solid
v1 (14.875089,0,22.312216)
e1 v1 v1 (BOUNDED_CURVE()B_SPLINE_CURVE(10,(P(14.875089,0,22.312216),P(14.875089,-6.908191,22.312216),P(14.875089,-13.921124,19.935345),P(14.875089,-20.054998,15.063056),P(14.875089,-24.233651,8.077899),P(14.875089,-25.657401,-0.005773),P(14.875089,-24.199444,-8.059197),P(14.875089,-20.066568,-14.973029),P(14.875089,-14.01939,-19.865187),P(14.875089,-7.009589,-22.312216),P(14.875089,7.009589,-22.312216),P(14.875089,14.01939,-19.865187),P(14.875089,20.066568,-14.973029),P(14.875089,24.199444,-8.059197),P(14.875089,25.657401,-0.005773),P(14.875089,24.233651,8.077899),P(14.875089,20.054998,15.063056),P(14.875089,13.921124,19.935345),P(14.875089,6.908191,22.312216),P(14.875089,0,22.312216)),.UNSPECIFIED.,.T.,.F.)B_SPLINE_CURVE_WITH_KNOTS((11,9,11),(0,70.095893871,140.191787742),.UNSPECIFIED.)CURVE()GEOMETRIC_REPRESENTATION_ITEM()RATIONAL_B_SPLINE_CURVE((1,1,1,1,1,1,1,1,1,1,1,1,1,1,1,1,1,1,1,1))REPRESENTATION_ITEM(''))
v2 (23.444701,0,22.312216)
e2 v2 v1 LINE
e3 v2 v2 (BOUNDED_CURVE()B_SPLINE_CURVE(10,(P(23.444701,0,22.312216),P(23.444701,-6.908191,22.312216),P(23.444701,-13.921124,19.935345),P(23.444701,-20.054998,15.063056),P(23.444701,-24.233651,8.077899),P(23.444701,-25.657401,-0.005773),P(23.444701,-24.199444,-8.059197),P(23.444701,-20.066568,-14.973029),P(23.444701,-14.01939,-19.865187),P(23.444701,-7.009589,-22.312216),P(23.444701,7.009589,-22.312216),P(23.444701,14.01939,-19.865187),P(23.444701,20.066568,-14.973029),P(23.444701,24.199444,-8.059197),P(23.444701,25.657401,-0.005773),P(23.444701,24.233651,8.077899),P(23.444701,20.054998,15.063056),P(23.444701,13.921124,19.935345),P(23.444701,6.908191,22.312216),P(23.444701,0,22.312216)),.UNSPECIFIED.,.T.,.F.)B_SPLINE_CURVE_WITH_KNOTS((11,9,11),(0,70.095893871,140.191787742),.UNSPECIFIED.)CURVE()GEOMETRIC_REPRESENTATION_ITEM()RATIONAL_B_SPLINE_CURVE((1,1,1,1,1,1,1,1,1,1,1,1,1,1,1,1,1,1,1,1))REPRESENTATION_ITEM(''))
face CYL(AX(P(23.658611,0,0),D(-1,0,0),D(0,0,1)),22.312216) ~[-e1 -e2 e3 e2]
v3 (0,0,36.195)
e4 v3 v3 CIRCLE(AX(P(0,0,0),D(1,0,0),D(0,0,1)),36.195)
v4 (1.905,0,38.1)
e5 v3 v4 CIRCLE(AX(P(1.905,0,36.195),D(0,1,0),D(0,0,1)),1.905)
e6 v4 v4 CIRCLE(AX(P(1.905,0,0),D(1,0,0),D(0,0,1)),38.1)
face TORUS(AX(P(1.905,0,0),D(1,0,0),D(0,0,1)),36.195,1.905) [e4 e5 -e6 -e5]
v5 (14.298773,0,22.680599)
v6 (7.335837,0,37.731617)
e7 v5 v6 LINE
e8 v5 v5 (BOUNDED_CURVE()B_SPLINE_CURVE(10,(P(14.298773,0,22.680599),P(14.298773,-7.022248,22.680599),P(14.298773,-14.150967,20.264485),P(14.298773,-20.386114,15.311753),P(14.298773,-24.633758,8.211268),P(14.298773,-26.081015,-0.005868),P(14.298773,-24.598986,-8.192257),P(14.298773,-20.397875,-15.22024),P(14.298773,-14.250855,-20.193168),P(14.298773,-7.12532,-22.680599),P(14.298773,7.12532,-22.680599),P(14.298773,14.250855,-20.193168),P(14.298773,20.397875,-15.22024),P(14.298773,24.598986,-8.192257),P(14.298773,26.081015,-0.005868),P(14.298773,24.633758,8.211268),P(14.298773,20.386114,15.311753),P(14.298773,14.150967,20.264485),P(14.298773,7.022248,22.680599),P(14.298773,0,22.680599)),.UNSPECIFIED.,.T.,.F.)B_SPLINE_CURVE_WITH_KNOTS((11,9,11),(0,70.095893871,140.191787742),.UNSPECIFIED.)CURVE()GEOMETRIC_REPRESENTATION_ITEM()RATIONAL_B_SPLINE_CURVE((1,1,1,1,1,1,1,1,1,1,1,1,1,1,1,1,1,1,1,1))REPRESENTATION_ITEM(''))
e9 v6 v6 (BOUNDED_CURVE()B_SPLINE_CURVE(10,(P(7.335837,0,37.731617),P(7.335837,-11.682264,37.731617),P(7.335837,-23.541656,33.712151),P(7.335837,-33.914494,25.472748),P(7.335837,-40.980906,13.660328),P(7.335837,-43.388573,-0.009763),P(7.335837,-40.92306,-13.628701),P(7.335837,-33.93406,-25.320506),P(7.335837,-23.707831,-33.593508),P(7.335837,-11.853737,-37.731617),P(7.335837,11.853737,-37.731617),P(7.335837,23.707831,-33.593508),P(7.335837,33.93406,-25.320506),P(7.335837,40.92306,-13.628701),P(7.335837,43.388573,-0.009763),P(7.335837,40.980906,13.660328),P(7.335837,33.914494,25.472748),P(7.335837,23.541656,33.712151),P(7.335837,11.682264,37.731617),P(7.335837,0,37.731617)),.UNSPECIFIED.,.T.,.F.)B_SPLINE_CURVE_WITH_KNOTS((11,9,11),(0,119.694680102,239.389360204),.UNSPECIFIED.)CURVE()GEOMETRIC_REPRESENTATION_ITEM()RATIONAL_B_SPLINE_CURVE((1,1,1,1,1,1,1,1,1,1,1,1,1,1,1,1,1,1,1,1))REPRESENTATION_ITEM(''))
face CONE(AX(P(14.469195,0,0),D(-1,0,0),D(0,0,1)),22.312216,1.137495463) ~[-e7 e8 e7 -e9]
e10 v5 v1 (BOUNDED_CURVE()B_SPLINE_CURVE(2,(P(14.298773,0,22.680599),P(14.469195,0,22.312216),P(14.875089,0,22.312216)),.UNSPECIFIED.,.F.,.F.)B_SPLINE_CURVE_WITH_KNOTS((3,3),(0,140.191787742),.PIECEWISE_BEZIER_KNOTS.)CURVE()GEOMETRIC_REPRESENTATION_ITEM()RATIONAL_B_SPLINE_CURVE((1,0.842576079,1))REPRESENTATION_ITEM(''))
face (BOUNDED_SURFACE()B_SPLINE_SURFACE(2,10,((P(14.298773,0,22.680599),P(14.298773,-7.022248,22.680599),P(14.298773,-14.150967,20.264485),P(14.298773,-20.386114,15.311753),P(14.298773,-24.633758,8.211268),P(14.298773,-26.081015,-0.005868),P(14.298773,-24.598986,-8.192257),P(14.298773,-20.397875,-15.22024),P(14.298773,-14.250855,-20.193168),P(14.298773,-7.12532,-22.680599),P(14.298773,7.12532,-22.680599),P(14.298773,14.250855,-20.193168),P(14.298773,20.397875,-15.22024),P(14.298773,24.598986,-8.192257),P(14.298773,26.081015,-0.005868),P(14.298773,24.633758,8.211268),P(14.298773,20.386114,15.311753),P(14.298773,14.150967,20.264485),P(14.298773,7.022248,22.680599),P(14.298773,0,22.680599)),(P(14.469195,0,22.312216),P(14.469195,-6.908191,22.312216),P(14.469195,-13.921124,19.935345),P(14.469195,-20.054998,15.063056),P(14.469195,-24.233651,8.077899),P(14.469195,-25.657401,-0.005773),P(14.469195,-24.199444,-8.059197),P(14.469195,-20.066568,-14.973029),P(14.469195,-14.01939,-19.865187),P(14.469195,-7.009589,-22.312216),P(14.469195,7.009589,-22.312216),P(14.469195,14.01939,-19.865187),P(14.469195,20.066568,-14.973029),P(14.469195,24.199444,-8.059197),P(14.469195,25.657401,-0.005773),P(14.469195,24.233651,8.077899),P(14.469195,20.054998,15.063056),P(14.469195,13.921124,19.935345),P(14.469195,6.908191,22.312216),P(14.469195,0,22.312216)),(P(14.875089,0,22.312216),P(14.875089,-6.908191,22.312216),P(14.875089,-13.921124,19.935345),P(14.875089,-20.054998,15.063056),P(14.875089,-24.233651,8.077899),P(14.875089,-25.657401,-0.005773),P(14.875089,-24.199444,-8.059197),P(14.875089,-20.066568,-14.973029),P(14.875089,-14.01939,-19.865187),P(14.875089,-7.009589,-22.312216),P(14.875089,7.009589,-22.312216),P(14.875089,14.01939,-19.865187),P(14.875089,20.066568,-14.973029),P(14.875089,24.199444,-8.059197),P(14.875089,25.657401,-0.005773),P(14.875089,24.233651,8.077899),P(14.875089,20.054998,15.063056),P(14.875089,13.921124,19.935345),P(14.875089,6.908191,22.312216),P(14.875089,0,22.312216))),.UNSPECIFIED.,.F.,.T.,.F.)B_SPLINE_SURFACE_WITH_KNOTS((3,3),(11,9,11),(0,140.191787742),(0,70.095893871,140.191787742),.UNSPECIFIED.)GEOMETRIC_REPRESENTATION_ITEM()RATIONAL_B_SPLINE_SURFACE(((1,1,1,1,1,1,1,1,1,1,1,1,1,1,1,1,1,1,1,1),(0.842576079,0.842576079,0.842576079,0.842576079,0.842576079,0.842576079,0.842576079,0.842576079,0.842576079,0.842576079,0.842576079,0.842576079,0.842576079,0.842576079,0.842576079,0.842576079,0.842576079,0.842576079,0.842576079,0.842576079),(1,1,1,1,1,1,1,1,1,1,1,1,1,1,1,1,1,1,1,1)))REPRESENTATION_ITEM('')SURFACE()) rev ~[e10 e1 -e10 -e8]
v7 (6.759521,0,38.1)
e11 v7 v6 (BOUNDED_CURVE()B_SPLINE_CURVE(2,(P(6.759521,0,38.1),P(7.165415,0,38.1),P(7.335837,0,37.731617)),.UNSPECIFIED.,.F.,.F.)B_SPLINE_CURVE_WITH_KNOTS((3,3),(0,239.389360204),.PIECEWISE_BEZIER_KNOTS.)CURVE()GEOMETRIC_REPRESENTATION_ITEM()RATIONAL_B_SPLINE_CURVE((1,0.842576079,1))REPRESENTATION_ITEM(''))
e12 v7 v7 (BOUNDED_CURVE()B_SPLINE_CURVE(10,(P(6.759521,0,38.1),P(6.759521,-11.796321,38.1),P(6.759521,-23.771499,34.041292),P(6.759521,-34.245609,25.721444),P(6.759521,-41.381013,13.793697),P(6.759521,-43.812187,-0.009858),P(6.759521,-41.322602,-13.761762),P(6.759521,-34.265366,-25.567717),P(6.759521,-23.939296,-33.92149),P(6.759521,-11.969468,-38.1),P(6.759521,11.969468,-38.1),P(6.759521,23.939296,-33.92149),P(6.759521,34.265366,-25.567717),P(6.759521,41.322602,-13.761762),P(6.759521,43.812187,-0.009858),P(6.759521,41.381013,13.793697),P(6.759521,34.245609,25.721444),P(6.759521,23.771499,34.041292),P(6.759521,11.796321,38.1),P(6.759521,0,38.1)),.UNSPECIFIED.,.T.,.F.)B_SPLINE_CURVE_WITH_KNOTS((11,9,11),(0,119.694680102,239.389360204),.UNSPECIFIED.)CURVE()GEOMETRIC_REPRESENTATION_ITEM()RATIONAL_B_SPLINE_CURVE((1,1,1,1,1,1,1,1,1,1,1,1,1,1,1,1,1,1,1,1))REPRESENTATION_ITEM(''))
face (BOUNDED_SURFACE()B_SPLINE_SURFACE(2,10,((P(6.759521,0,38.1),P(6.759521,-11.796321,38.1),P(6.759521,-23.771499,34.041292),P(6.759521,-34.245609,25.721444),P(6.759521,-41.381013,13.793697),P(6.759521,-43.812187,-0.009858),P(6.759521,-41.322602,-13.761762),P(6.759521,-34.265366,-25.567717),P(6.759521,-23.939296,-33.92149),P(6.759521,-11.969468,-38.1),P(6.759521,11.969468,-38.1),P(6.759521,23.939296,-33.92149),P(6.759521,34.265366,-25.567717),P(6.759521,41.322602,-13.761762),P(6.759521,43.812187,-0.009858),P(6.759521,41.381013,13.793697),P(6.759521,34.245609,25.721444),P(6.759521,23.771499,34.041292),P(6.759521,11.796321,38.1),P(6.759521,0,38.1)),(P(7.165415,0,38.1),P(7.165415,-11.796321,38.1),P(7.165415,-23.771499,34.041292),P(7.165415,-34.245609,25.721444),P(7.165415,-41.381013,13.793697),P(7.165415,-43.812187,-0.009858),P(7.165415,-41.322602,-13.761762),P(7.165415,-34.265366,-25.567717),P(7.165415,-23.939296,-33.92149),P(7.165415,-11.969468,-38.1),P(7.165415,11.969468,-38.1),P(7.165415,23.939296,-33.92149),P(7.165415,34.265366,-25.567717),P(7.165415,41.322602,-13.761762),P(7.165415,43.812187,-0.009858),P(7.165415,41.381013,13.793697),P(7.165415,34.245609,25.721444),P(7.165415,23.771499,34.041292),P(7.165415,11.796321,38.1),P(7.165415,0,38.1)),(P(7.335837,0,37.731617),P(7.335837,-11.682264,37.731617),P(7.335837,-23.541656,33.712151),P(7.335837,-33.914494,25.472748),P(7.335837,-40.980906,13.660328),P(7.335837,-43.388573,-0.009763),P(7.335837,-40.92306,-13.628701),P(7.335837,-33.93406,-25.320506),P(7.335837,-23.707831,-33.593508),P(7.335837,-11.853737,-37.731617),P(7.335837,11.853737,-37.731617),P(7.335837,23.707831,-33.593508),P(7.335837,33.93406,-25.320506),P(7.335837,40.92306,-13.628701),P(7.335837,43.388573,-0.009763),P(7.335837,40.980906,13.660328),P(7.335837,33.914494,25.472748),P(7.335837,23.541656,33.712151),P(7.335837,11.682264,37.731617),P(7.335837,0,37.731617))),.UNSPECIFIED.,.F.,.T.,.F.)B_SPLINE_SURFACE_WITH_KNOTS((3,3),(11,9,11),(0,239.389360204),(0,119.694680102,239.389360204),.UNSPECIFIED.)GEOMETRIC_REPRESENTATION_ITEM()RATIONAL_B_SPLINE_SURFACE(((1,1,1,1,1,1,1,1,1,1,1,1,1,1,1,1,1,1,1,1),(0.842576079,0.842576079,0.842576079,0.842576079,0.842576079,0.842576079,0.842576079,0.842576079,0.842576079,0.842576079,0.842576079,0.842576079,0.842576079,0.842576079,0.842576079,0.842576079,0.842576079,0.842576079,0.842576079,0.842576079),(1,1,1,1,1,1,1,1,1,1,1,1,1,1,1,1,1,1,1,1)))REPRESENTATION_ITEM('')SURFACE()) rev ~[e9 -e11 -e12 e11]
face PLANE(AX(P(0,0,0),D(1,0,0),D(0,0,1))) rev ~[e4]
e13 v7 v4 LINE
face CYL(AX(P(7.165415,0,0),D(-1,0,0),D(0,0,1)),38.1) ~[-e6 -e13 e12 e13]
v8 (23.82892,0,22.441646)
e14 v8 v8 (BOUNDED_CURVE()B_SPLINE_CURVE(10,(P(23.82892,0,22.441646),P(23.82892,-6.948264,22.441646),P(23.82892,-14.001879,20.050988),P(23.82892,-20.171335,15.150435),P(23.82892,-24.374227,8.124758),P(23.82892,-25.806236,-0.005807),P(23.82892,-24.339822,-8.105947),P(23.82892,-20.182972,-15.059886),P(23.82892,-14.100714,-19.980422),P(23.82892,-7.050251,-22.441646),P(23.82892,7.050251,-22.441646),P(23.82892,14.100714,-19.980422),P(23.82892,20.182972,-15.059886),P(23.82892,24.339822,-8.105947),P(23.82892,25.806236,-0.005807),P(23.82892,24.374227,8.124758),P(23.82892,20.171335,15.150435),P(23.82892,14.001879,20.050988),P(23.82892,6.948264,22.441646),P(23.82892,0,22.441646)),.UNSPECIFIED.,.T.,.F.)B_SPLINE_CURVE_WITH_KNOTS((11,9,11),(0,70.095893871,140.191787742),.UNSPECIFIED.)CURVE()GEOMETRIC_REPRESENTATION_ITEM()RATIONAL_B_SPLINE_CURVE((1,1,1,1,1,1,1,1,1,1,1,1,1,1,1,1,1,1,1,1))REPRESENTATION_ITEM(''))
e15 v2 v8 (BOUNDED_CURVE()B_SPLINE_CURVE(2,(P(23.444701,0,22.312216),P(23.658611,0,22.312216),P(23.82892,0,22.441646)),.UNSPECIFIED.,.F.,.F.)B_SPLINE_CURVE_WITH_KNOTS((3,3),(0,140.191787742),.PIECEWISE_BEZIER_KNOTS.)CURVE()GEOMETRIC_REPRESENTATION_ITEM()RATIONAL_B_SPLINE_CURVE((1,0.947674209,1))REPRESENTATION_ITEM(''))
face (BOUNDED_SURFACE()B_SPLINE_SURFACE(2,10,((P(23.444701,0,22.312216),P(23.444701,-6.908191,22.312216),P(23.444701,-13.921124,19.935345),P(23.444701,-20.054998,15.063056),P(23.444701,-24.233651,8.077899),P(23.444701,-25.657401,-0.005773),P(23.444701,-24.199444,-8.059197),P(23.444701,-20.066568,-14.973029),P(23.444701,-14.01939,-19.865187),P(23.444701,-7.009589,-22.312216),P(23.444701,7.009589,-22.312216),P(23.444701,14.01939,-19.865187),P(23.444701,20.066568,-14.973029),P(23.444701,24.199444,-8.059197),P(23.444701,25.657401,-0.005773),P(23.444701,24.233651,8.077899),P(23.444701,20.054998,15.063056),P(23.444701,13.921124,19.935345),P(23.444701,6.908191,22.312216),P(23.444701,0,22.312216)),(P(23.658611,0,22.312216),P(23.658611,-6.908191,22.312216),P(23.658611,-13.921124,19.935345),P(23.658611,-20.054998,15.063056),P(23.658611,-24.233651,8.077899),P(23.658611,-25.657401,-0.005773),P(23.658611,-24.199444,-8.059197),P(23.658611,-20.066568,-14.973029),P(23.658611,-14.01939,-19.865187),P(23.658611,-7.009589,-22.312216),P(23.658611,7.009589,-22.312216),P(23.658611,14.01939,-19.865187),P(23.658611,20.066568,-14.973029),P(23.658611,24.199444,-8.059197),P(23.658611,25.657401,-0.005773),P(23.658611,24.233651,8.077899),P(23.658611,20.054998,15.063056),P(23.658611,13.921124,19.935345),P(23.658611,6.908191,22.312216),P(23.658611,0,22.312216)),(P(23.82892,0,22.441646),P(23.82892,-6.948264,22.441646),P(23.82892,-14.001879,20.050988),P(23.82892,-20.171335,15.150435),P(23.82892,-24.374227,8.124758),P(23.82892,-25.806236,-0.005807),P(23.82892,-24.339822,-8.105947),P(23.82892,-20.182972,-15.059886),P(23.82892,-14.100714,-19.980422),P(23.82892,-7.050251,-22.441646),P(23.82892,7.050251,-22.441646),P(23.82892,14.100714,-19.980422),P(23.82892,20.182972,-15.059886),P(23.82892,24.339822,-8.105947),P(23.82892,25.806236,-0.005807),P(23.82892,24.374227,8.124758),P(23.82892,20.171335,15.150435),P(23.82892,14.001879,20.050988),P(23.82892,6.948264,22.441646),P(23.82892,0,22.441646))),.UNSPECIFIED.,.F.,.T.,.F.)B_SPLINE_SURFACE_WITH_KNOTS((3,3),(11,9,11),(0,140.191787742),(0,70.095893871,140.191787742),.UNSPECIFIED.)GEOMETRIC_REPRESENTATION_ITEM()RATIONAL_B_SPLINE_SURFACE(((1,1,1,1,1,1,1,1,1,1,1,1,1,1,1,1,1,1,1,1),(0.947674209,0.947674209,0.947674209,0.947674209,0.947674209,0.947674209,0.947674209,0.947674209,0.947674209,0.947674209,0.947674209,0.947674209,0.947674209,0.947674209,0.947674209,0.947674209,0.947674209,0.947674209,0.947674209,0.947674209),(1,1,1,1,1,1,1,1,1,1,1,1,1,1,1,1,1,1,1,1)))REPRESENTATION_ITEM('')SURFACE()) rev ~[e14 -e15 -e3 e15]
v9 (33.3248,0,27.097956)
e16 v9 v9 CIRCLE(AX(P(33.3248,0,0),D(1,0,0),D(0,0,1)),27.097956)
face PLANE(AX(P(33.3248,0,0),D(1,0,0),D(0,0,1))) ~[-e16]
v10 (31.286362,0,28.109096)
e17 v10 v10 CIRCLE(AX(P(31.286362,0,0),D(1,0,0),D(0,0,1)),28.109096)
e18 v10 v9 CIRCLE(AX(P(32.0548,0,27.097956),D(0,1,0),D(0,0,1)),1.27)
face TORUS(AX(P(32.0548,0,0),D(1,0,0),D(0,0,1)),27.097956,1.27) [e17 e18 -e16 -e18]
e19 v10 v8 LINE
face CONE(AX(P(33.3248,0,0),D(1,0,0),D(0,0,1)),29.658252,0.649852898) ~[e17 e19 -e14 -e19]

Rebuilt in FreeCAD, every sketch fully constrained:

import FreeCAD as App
import Part
import Sketcher
Q = App.Units.Quantity


def edges_at(feature, points):
    """Names of the edges that pass closest to the given points."""
    edges = feature.Shape.Edges
    near = lambda p: min(range(len(edges)), key=lambda i: edges[i].distToShape(Part.Vertex(*p))[0])
    return sorted({f"Edge{near(p) + 1}" for p in points})


def add_polygon(sketch, points):
    """Adds a closed chain of lines whose ends are joined by coincident constraints."""
    first, n = sketch.GeometryCount, len(points)
    for a, b in zip(points, points[1:] + points[:1]):
        sketch.addGeometry(Part.LineSegment(App.Vector(*a, 0), App.Vector(*b, 0)), False)
    for i in range(n):
        sketch.addConstraint(Sketcher.Constraint("Coincident", first + i, 2, first + (i + 1) % n, 1))

doc = App.newDocument("Part")
body = doc.addObject("PartDesign::Body", "Body")

# Sketch on XZ plane
sketch1 = body.newObject("Sketcher::SketchObject", "Sketch")
sketch1.AttachmentSupport = (doc.getObject("XZ_Plane"), [""])
sketch1.MapMode = "FlatFace"
add_polygon(sketch1, [(0, 38), (0, 0), (33, 0), (33, 30), (24, 22), (14, 22), (7, 38)])  # lines 0-6
sketch1.addConstraint(Sketcher.Constraint("Vertical", 0))
sketch1.addConstraint(Sketcher.Constraint("Horizontal", 1))
sketch1.addConstraint(Sketcher.Constraint("Vertical", 2))
sketch1.addConstraint(Sketcher.Constraint("Horizontal", 4))
sketch1.addConstraint(Sketcher.Constraint("Horizontal", 6))
sketch1.addConstraint(Sketcher.Constraint("Coincident", 0, 2, -1, 1))
sketch1.addConstraint(Sketcher.Constraint("DistanceY", 0, 2, 0, 1, Q("1.5 in")))
sketch1.addConstraint(Sketcher.Constraint("DistanceX", 1, 1, 1, 2, Q("1.312 in")))
sketch1.addConstraint(Sketcher.Constraint("DistanceX", 4, 2, 4, 1, Q("9.189416 mm")))
sketch1.addConstraint(Sketcher.Constraint("DistanceX", 6, 2, 6, 1, Q("7.165415 mm")))
sketch1.addConstraint(Sketcher.Constraint("DistanceY", 2, 1, 2, 2, Q("29.658252 mm")))
sketch1.addConstraint(Sketcher.Constraint("DistanceX", -1, 1, 3, 2, Q("23.658611 mm")))
sketch1.addConstraint(Sketcher.Constraint("Distance", 3, Q("12.140818 mm")))
revolution = body.newObject("PartDesign::Revolution", "Revolution")
revolution.Profile = sketch1
revolution.ReferenceAxis = (sketch1, ["H_Axis"])
revolution.Angle = 360
doc.recompute()

fillet = body.newObject("PartDesign::Fillet", "Fillet")
fillet.Base = (revolution, edges_at(revolution, [(0, 0, -38.1)]))
fillet.Radius = Q("0.075 in")
doc.recompute()

fillet2 = body.newObject("PartDesign::Fillet", "Fillet001")
fillet2.Base = (fillet, edges_at(fillet, [(7.165, 0, -38.1), (14.469, 0, -22.312), (23.659, 0, -22.312)]))
fillet2.Radius = Q("0.025 in")
doc.recompute()

fillet3 = body.newObject("PartDesign::Fillet", "Fillet002")
fillet3.Base = (fillet2, edges_at(fillet2, [(33.325, 0, -29.658)]))
fillet3.Radius = Q("0.05 in")

doc.recompute()
